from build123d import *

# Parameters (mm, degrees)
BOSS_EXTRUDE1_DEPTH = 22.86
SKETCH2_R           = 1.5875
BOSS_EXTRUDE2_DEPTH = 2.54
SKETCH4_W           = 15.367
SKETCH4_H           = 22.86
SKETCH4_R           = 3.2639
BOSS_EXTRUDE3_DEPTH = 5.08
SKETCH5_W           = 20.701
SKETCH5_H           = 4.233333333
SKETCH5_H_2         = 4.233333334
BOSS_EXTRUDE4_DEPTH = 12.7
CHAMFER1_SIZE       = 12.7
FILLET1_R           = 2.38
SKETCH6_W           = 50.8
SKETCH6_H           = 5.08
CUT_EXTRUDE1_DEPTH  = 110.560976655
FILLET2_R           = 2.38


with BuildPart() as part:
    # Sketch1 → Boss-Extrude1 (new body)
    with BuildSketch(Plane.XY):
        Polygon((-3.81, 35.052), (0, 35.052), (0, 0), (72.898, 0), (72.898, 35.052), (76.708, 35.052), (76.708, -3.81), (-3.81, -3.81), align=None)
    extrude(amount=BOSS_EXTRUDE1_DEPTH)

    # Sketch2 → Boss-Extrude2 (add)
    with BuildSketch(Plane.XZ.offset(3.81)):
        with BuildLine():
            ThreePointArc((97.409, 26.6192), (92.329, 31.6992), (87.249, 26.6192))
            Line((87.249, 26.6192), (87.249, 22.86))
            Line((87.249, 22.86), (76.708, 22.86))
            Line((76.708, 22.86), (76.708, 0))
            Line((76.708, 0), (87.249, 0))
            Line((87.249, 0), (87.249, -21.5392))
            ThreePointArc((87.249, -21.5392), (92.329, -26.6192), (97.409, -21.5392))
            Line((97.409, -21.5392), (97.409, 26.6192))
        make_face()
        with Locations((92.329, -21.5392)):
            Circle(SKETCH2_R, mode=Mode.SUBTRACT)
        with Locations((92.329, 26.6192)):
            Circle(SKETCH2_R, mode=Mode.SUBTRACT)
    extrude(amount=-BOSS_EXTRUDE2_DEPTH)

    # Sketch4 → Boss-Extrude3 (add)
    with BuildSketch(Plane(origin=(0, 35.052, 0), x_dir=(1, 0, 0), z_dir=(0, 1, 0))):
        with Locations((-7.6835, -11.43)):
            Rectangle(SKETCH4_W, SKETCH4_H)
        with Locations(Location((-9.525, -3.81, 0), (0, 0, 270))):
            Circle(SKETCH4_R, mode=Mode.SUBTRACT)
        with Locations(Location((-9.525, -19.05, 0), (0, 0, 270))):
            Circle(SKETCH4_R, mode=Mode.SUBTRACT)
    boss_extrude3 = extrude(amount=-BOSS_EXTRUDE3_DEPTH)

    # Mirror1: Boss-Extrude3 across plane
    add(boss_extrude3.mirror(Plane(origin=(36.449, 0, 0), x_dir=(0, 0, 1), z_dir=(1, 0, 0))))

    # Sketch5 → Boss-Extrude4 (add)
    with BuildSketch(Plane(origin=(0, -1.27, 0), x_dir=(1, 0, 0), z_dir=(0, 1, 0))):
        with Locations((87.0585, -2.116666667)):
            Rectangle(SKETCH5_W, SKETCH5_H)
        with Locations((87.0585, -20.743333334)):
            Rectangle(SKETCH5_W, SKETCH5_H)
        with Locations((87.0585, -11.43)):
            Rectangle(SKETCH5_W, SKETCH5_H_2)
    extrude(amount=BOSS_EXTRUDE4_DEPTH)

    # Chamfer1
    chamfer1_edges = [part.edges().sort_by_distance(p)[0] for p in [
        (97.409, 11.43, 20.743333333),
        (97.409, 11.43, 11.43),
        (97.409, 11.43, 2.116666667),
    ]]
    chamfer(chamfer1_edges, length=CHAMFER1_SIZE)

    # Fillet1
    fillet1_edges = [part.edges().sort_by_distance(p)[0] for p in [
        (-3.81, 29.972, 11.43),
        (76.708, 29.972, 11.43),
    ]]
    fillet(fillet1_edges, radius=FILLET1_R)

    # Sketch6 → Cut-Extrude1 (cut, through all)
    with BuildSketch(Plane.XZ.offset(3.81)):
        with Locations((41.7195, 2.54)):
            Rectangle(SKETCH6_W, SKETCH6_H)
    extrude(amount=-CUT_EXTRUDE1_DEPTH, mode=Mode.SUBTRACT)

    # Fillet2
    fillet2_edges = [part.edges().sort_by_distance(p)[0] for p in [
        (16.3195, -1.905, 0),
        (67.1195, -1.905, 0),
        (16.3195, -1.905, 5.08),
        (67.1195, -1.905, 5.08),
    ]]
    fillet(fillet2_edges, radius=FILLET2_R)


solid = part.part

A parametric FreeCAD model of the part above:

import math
import FreeCAD as App
import Part
import Sketcher

V = App.Vector
Q = App.Units.Quantity


def edges_at(feature, points):
    """Names of the edges that pass closest to the given points."""
    edges = feature.Shape.Edges
    near = lambda p: min(range(len(edges)), key=lambda i: edges[i].distToShape(Part.Vertex(*p))[0])
    return sorted({f"Edge{near(p) + 1}" for p in points})


def add_polygon(sketch, points):
    """Adds a closed chain of lines whose ends are joined by coincident constraints."""
    first, n = sketch.GeometryCount, len(points)
    for a, b in zip(points, points[1:] + points[:1]):
        sketch.addGeometry(Part.LineSegment(App.Vector(*a, 0), App.Vector(*b, 0)), False)
    for i in range(n):
        sketch.addConstraint(Sketcher.Constraint("Coincident", first + i, 2, first + (i + 1) % n, 1))

doc = App.newDocument("Part")
body = doc.addObject("PartDesign::Body", "Body")

# Sketch on XY plane
sketch1 = body.newObject("Sketcher::SketchObject", "Sketch")
sketch1.AttachmentSupport = (doc.getObject("XY_Plane"), [""])
sketch1.MapMode = "FlatFace"
add_polygon(sketch1, [(0, 35.1), (-3.8, 35.1), (-3.8, -3.8), (76.7, -3.8), (76.7, 35.1), (72.9, 35.1), (72.9, 0), (0, 0)])  # lines 0-7
sketch1.addConstraint([
    Sketcher.Constraint("Horizontal", 0),
    Sketcher.Constraint("Vertical", 1),
    Sketcher.Constraint("Horizontal", 2),
    Sketcher.Constraint("Vertical", 3),
    Sketcher.Constraint("Horizontal", 4),
    Sketcher.Constraint("Vertical", 5),
    Sketcher.Constraint("Horizontal", 6),
    Sketcher.Constraint("Vertical", 7),
    Sketcher.Constraint("Coincident", 6, 2, -1, 1),
    Sketcher.Constraint("Horizontal", 0, 2, 3, 2),
    Sketcher.Constraint("Equal", 0, 4),
    Sketcher.Constraint("DistanceX", 0, 2, 0, 1, Q("0.15 in")),
    Sketcher.Constraint("DistanceX", 2, 1, 2, 2, Q("3.17 in")),
    Sketcher.Constraint("DistanceY", 1, 2, 1, 1, Q("1.53 in")),
    Sketcher.Constraint("DistanceY", 5, 2, 5, 1, Q("1.38 in")),
])
pad1 = body.newObject("PartDesign::Pad", "Pad")
pad1.Profile = sketch1
pad1.Length = Q("0.9 in")

# Sketch on XZ plane
sketch2 = body.newObject("Sketcher::SketchObject", "Sketch001")
sketch2.AttachmentSupport = (doc.getObject("XZ_Plane"), [""])
sketch2.MapMode = "FlatFace"
sketch2.AttachmentOffset = App.Placement(V(0, 0, 0.15 * 25.4), App.Rotation())
sketch2.addGeometry([
    Part.ArcOfCircle(Part.Circle(V(92.3, 26.6, 0), V(0, 0, 1), 5.1), math.radians(0), math.radians(180)),  # 0
    Part.LineSegment(V(87.2, 26.6, 0), V(87.2, 22.9, 0)),  # 1
    Part.LineSegment(V(87.2, 22.9, 0), V(76.7, 22.9, 0)),  # 2
    Part.LineSegment(V(76.7, 22.9, 0), V(76.7, 0, 0)),  # 3
    Part.LineSegment(V(76.7, 0, 0), V(87.2, 0, 0)),  # 4
    Part.LineSegment(V(87.2, 0, 0), V(87.2, -21.5, 0)),  # 5
    Part.ArcOfCircle(Part.Circle(V(92.3, -21.5, 0), V(0, 0, 1), 5.1), math.radians(180), math.radians(360)),  # 6
    Part.LineSegment(V(97.4, -21.5, 0), V(97.4, 26.6, 0)),  # 7
    Part.Circle(V(92.3, -21.5, 0), V(0, 0, 1), 1.6),  # 8
    Part.Circle(V(92.3, 26.6, 0), V(0, 0, 1), 1.6),  # 9
], False)
sketch2.addConstraint([
    Sketcher.Constraint("Tangent", 0, 2, 1, 1),
    Sketcher.Constraint("Coincident", 1, 2, 2, 1),
    Sketcher.Constraint("Coincident", 2, 2, 3, 1),
    Sketcher.Constraint("Coincident", 3, 2, 4, 1),
    Sketcher.Constraint("Coincident", 4, 2, 5, 1),
    Sketcher.Constraint("Tangent", 5, 2, 6, 1),
    Sketcher.Constraint("Tangent", 6, 2, 7, 1),
    Sketcher.Constraint("Tangent", 7, 2, 0, 1),
    Sketcher.Constraint("Vertical", 1),
    Sketcher.Constraint("Horizontal", 2),
    Sketcher.Constraint("Vertical", 3),
    Sketcher.Constraint("Horizontal", 4),
    Sketcher.Constraint("Vertical", 5),
    Sketcher.Constraint("Vertical", 7),
    Sketcher.Constraint("Coincident", 8, 3, 6, 3),
    Sketcher.Constraint("Coincident", 9, 3, 0, 3),
    Sketcher.Constraint("Equal", 0, 6),
    Sketcher.Constraint("Equal", 8, 9),
    Sketcher.Constraint("PointOnObject", 3, 2, -1),
    Sketcher.Constraint("Radius", 0, Q("0.2 in")),
    Sketcher.Constraint("Diameter", 8, Q("0.125 in")),
    Sketcher.Constraint("DistanceY", 3, 2, 3, 1, Q("0.9 in")),
    Sketcher.Constraint("DistanceX", 2, 2, 2, 1, Q("0.415 in")),
    Sketcher.Constraint("DistanceY", 1, 2, 1, 1, Q("0.148 in")),
    Sketcher.Constraint("DistanceY", 5, 2, 5, 1, Q("0.848 in")),
    Sketcher.Constraint("DistanceX", -1, 1, 2, 2, Q("3.02 in")),
])
pad2 = body.newObject("PartDesign::Pad", "Pad001")
pad2.Profile = sketch2
pad2.Length = Q("0.1 in")
pad2.Reversed = True

# Sketch on XZ plane
sketch3 = body.newObject("Sketcher::SketchObject", "Sketch002")
sketch3.AttachmentSupport = (doc.getObject("XZ_Plane"), [""])
sketch3.MapMode = "FlatFace"
sketch3.AttachmentOffset = App.Placement(V(0, 0, -1.38 * 25.4), App.Rotation())
add_polygon(sketch3, [(-15.4, 0), (-15.4, 22.9), (0, 22.9), (0, 0)])  # lines 0-3
sketch3.addGeometry(Part.Circle(V(-9.5, 19.1, 0), V(0, 0, 1), 3.3), False)  # 4
sketch3.addGeometry(Part.Circle(V(-9.5, 3.8, 0), V(0, 0, 1), 3.3), False)  # 5
sketch3.addConstraint([
    Sketcher.Constraint("Vertical", 0),
    Sketcher.Constraint("Horizontal", 1),
    Sketcher.Constraint("Vertical", 2),
    Sketcher.Constraint("Horizontal", 3),
    Sketcher.Constraint("Coincident", 2, 2, -1, 1),
    Sketcher.Constraint("Equal", 4, 5),
    Sketcher.Constraint("Vertical", 4, 3, 5, 3),
    Sketcher.Constraint("Diameter", 4, Q("0.257 in")),
    Sketcher.Constraint("DistanceY", 0, 1, 0, 2, Q("0.9 in")),
    Sketcher.Constraint("DistanceY", 5, 3, 4, 3, Q("0.6 in")),
    Sketcher.Constraint("DistanceX", 1, 1, 1, 2, Q("0.605 in")),
    Sketcher.Constraint("DistanceY", -1, 1, 4, 3, Q("0.75 in")),
    Sketcher.Constraint("DistanceX", 0, 2, 4, 3, Q("0.23 in")),
])
pad3 = body.newObject("PartDesign::Pad", "Pad002")
pad3.Profile = sketch3
pad3.Length = Q("0.2 in")
doc.recompute()

datumplane = body.newObject("PartDesign::Plane", "DatumPlane")
datumplane.AttachmentSupport = (doc.getObject("YZ_Plane"), [""])
datumplane.MapMode = "FlatFace"
datumplane.AttachmentOffset = App.Placement(V(0, 0, 1.435 * 25.4), App.Rotation())
mirrored = body.newObject("PartDesign::Mirrored", "Mirrored")
mirrored.Originals = [pad3]
mirrored.MirrorPlane = (datumplane, [""])
body.Tip = mirrored

# Sketch on XZ plane
sketch4 = body.newObject("Sketcher::SketchObject", "Sketch003")
sketch4.AttachmentSupport = (doc.getObject("XZ_Plane"), [""])
sketch4.MapMode = "FlatFace"
sketch4.AttachmentOffset = App.Placement(V(0, 0, 0.05 * 25.4), App.Rotation())
add_polygon(sketch4, [(76.7, 0), (76.7, 4.2), (97.4, 4.2), (97.4, 0)])  # lines 0-3
add_polygon(sketch4, [(76.7, 18.6), (76.7, 22.9), (97.4, 22.9), (97.4, 18.6)])  # lines 4-7
add_polygon(sketch4, [(76.7, 9.3), (76.7, 13.5), (97.4, 13.5), (97.4, 9.3)])  # lines 8-11
sketch4.addConstraint([
    Sketcher.Constraint("Vertical", 0),
    Sketcher.Constraint("Horizontal", 1),
    Sketcher.Constraint("Vertical", 2),
    Sketcher.Constraint("Horizontal", 3),
    Sketcher.Constraint("Vertical", 4),
    Sketcher.Constraint("Horizontal", 5),
    Sketcher.Constraint("Vertical", 6),
    Sketcher.Constraint("Horizontal", 7),
    Sketcher.Constraint("Vertical", 8),
    Sketcher.Constraint("Horizontal", 9),
    Sketcher.Constraint("Vertical", 10),
    Sketcher.Constraint("Horizontal", 11),
    Sketcher.Constraint("PointOnObject", 2, 2, -1),
    Sketcher.Constraint("Vertical", 3, 2, 4, 2),
    Sketcher.Constraint("Vertical", 2, 2, 5, 2),
    Sketcher.Constraint("Vertical", 7, 2, 8, 2),
    Sketcher.Constraint("Vertical", 6, 2, 9, 2),
    Sketcher.Constraint("Equal", 2, 4),
    Sketcher.Constraint("Equal", 6, 8),
    Sketcher.Constraint("DistanceY", -1, 1, 4, 2, Q("0.9 in")),
    Sketcher.Constraint("DistanceY", 8, 2, 7, 2, Q("0.2 in")),
    Sketcher.Constraint("DistanceY", 1, 2, 10, 2, Q("0.2 in")),
    Sketcher.Constraint("DistanceX", 1, 1, 1, 2, Q("0.815 in")),
    Sketcher.Constraint("DistanceX", -1, 1, 0, 2, Q("3.02 in")),
])
pad4 = body.newObject("PartDesign::Pad", "Pad003")
pad4.Profile = sketch4
pad4.Length = Q("0.5 in")
pad4.Reversed = True
doc.recompute()

chamfer = body.newObject("PartDesign::Chamfer", "Chamfer")
chamfer.Base = (pad4, edges_at(pad4, [(97.409, 11.43, 20.743), (97.409, 11.43, 11.43), (97.409, 11.43, 2.117)]))
chamfer.Size = Q("0.5 in")
doc.recompute()

fillet = body.newObject("PartDesign::Fillet", "Fillet")
fillet.Base = (chamfer, edges_at(chamfer, [(-3.81, 29.972, 11.43), (76.708, 29.972, 11.43)]))
fillet.Radius = 2.38

# Sketch on XZ plane
sketch5 = body.newObject("Sketcher::SketchObject", "Sketch004")
sketch5.AttachmentSupport = (doc.getObject("XZ_Plane"), [""])
sketch5.MapMode = "FlatFace"
sketch5.AttachmentOffset = App.Placement(V(0, 0, 0.15 * 25.4), App.Rotation())
add_polygon(sketch5, [(16, 5), (16, 0), (67, 0), (67, 5)])  # lines 0-3
sketch5.addConstraint([
    Sketcher.Constraint("Vertical", 0),
    Sketcher.Constraint("Horizontal", 1),
    Sketcher.Constraint("Vertical", 2),
    Sketcher.Constraint("Horizontal", 3),
    Sketcher.Constraint("PointOnObject", 0, 2, -1),
    Sketcher.Constraint("DistanceX", 1, 1, 1, 2, Q("2 in")),
    Sketcher.Constraint("DistanceY", 0, 2, 0, 1, Q("0.2 in")),
    Sketcher.Constraint("DistanceX", -1, 1, 0, 2, Q("0.6425 in")),
])
pocket1 = body.newObject("PartDesign::Pocket", "Pocket")
pocket1.Profile = sketch5
pocket1.Type = "ThroughAll"
doc.recompute()

fillet2 = body.newObject("PartDesign::Fillet", "Fillet001")
fillet2.Base = (pocket1, edges_at(pocket1, [
    (16.32, -1.905, 0),
    (67.12, -1.905, 0),
    (16.32, -1.905, 5.08),
    (67.12, -1.905, 5.08),
]))
fillet2.Radius = 2.38

doc.recompute()
